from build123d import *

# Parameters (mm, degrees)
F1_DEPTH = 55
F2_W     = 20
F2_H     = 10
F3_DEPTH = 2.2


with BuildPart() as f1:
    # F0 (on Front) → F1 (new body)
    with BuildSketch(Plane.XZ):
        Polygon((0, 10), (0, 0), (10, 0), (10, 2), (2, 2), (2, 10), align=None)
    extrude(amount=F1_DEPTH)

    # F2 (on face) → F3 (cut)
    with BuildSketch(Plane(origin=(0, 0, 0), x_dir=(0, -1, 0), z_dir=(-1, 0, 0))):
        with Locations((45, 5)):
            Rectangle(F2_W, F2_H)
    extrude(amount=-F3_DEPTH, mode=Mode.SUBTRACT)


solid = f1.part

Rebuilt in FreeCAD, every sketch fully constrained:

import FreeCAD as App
import Part
import Sketcher

V = App.Vector
Q = App.Units.Quantity


def add_polygon(sketch, points):
    """Adds a closed chain of lines whose ends are joined by coincident constraints."""
    first, n = sketch.GeometryCount, len(points)
    for a, b in zip(points, points[1:] + points[:1]):
        sketch.addGeometry(Part.LineSegment(App.Vector(*a, 0), App.Vector(*b, 0)), False)
    for i in range(n):
        sketch.addConstraint(Sketcher.Constraint("Coincident", first + i, 2, first + (i + 1) % n, 1))

doc = App.newDocument("Part")
body = doc.addObject("PartDesign::Body", "Body")

# Sketch on XZ plane
sketch1 = doc.addObject("Sketcher::SketchObject", "Sketch")
body.addObject(sketch1)
sketch1.AttachmentSupport = (doc.XZ_Plane, [""])
sketch1.MapMode = "FlatFace"
add_polygon(sketch1, [(0, 10), (0, 0), (10, 0), (10, 2), (2, 2), (2, 10)])  # lines 0-5
sketch1.addConstraint([
    Sketcher.Constraint("Vertical", 0),
    Sketcher.Constraint("Horizontal", 1),
    Sketcher.Constraint("Vertical", 2),
    Sketcher.Constraint("Horizontal", 3),
    Sketcher.Constraint("Vertical", 4),
    Sketcher.Constraint("Horizontal", 5),
    Sketcher.Constraint("Coincident", 0, 2, -1, 1),
    Sketcher.Constraint("Equal", 1, 0),
    Sketcher.Constraint("Equal", 5, 2),
    Sketcher.Constraint("DistanceX", 1, 1, 1, 2, Q("10 mm")),
    Sketcher.Constraint("DistanceX", 3, 2, 3, 1, Q("8 mm")),
])
pad1 = doc.addObject("PartDesign::Pad", "Pad")
body.addObject(pad1)
pad1.Profile = sketch1
pad1.Length = 55

# Sketch on YZ plane
sketch2 = doc.addObject("Sketcher::SketchObject", "Sketch001")
body.addObject(sketch2)
sketch2.AttachmentSupport = (doc.YZ_Plane, [""])
sketch2.MapMode = "FlatFace"
add_polygon(sketch2, [(-35, 10), (-35, 0), (-55, 0), (-55, 10)])  # lines 0-3
sketch2.addConstraint([
    Sketcher.Constraint("Vertical", 0),
    Sketcher.Constraint("Horizontal", 1),
    Sketcher.Constraint("Vertical", 2),
    Sketcher.Constraint("Horizontal", 3),
    Sketcher.Constraint("PointOnObject", 0, 2, -1),
    Sketcher.Constraint("DistanceX", 1, 2, 1, 1, Q("20 mm")),
    Sketcher.Constraint("DistanceY", 0, 2, 0, 1, Q("10 mm")),
    Sketcher.Constraint("DistanceX", 0, 2, -1, 1, Q("35 mm")),
])
pocket1 = doc.addObject("PartDesign::Pocket", "Pocket")
body.addObject(pocket1)
pocket1.Profile = sketch2
pocket1.Length = 2.2
pocket1.Reversed = True

doc.recompute()
